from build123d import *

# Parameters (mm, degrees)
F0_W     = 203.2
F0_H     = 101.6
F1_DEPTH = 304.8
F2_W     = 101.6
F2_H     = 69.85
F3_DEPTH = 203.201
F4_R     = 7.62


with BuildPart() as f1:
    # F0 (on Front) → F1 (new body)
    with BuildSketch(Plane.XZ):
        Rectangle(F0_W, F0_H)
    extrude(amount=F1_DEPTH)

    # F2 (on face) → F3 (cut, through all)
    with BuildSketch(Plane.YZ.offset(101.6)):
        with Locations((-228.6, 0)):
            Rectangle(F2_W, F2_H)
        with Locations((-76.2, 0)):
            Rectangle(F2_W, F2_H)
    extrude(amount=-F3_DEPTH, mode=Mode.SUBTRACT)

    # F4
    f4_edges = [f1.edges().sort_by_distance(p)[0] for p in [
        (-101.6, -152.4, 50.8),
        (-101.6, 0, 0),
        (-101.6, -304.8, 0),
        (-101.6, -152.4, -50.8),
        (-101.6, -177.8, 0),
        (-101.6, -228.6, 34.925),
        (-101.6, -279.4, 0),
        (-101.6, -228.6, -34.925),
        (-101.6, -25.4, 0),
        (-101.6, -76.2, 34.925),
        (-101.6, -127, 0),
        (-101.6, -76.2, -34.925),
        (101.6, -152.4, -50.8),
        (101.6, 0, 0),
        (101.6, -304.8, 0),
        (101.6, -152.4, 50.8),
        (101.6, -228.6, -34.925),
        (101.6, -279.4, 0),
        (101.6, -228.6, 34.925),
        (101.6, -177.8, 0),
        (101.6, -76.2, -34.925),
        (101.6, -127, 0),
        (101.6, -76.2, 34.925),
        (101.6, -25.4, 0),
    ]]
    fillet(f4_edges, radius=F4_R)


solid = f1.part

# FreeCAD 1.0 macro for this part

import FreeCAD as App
import Part
import Sketcher
Q = App.Units.Quantity


def edges_at(feature, points):
    """Names of the edges that pass closest to the given points."""
    edges = feature.Shape.Edges
    near = lambda p: min(range(len(edges)), key=lambda i: edges[i].distToShape(Part.Vertex(*p))[0])
    return sorted({f"Edge{near(p) + 1}" for p in points})

doc = App.newDocument("Part")
body = doc.addObject("PartDesign::Body", "Body")

# Sketch on XZ plane
sketch1 = body.newObject("Sketcher::SketchObject", "Sketch")
sketch1.AttachmentSupport = (doc.getObject("XZ_Plane"), [""])
sketch1.MapMode = "FlatFace"
sketch1.addGeometry(Part.LineSegment(App.Vector(-101.6, 50.8, 0), App.Vector(-101.6, -50.8, 0)), False)
sketch1.addGeometry(Part.LineSegment(App.Vector(-101.6, -50.8, 0), App.Vector(101.6, -50.8, 0)), False)
sketch1.addGeometry(Part.LineSegment(App.Vector(101.6, -50.8, 0), App.Vector(101.6, 50.8, 0)), False)
sketch1.addGeometry(Part.LineSegment(App.Vector(101.6, 50.8, 0), App.Vector(-101.6, 50.8, 0)), False)
sketch1.addConstraint(Sketcher.Constraint("Coincident", 0, 2, 1, 1))
sketch1.addConstraint(Sketcher.Constraint("Coincident", 1, 2, 2, 1))
sketch1.addConstraint(Sketcher.Constraint("Coincident", 2, 2, 3, 1))
sketch1.addConstraint(Sketcher.Constraint("Coincident", 3, 2, 0, 1))
sketch1.addConstraint(Sketcher.Constraint("Vertical", 0))
sketch1.addConstraint(Sketcher.Constraint("Horizontal", 1))
sketch1.addConstraint(Sketcher.Constraint("Vertical", 2))
sketch1.addConstraint(Sketcher.Constraint("Horizontal", 3))
sketch1.addConstraint(Sketcher.Constraint("Symmetric", 0, 2, 2, 2, -1, 1))
sketch1.addConstraint(Sketcher.Constraint("DistanceX", 1, 1, 1, 2, Q("8 in")))
sketch1.addConstraint(Sketcher.Constraint("DistanceY", 0, 2, 0, 1, Q("4 in")))
pad1 = body.newObject("PartDesign::Pad", "Pad")
pad1.Profile = sketch1
pad1.Length = Q("12 in")

# Sketch on YZ plane
sketch2 = body.newObject("Sketcher::SketchObject", "Sketch001")
sketch2.AttachmentSupport = (doc.getObject("YZ_Plane"), [""])
sketch2.MapMode = "FlatFace"
sketch2.AttachmentOffset = App.Placement(App.Vector(0, 0, 4 * 25.4), App.Rotation())
sketch2.addGeometry(Part.LineSegment(App.Vector(-279.4, 34.925, 0), App.Vector(-279.4, -34.925, 0)), False)
sketch2.addGeometry(Part.LineSegment(App.Vector(-279.4, -34.925, 0), App.Vector(-177.8, -34.925, 0)), False)
sketch2.addGeometry(Part.LineSegment(App.Vector(-177.8, -34.925, 0), App.Vector(-177.8, 34.925, 0)), False)
sketch2.addGeometry(Part.LineSegment(App.Vector(-177.8, 34.925, 0), App.Vector(-279.4, 34.925, 0)), False)
sketch2.addGeometry(Part.LineSegment(App.Vector(-127, 34.925, 0), App.Vector(-127, -34.925, 0)), False)
sketch2.addGeometry(Part.LineSegment(App.Vector(-127, -34.925, 0), App.Vector(-25.4, -34.925, 0)), False)
sketch2.addGeometry(Part.LineSegment(App.Vector(-25.4, -34.925, 0), App.Vector(-25.4, 34.925, 0)), False)
sketch2.addGeometry(Part.LineSegment(App.Vector(-25.4, 34.925, 0), App.Vector(-127, 34.925, 0)), False)
sketch2.addConstraint(Sketcher.Constraint("Coincident", 0, 2, 1, 1))
sketch2.addConstraint(Sketcher.Constraint("Coincident", 1, 2, 2, 1))
sketch2.addConstraint(Sketcher.Constraint("Coincident", 2, 2, 3, 1))
sketch2.addConstraint(Sketcher.Constraint("Coincident", 3, 2, 0, 1))
sketch2.addConstraint(Sketcher.Constraint("Coincident", 4, 2, 5, 1))
sketch2.addConstraint(Sketcher.Constraint("Coincident", 5, 2, 6, 1))
sketch2.addConstraint(Sketcher.Constraint("Coincident", 6, 2, 7, 1))
sketch2.addConstraint(Sketcher.Constraint("Coincident", 7, 2, 4, 1))
sketch2.addConstraint(Sketcher.Constraint("Vertical", 0))
sketch2.addConstraint(Sketcher.Constraint("Horizontal", 1))
sketch2.addConstraint(Sketcher.Constraint("Vertical", 2))
sketch2.addConstraint(Sketcher.Constraint("Horizontal", 3))
sketch2.addConstraint(Sketcher.Constraint("Vertical", 4))
sketch2.addConstraint(Sketcher.Constraint("Horizontal", 5))
sketch2.addConstraint(Sketcher.Constraint("Vertical", 6))
sketch2.addConstraint(Sketcher.Constraint("Horizontal", 7))
sketch2.addConstraint(Sketcher.Constraint("Horizontal", 1, 2, 4, 2))
sketch2.addConstraint(Sketcher.Constraint("Horizontal", 3, 2, 6, 2))
sketch2.addConstraint(Sketcher.Constraint("Equal", 3, 5))
sketch2.addConstraint(Sketcher.Constraint("DistanceX", 1, 1, 1, 2, Q("4 in")))
sketch2.addConstraint(Sketcher.Constraint("DistanceX", 0, 2, -1, 1, Q("11 in")))
sketch2.addConstraint(Sketcher.Constraint("DistanceX", 4, 2, -1, 1, Q("5 in")))
sketch2.addConstraint(Sketcher.Constraint("DistanceY", 0, 2, 0, 1, Q("2.75 in")))
sketch2.addConstraint(Sketcher.Constraint("DistanceY", 0, 2, -1, 1, Q("1.375 in")))
pocket1 = body.newObject("PartDesign::Pocket", "Pocket")
pocket1.Profile = sketch2
pocket1.Type = "ThroughAll"
doc.recompute()

fillet = body.newObject("PartDesign::Fillet", "Fillet")
fillet.Base = (pocket1, edges_at(pocket1, [
    (-101.6, -152.4, 50.8),
    (-101.6, 0, 0),
    (-101.6, -304.8, 0),
    (-101.6, -152.4, -50.8),
    (-101.6, -177.8, 0),
    (-101.6, -228.6, 34.925),
    (-101.6, -279.4, 0),
    (-101.6, -228.6, -34.925),
    (-101.6, -25.4, 0),
    (-101.6, -76.2, 34.925),
    (-101.6, -127, 0),
    (-101.6, -76.2, -34.925),
    (101.6, -152.4, -50.8),
    (101.6, 0, 0),
    (101.6, -304.8, 0),
    (101.6, -152.4, 50.8),
    (101.6, -228.6, -34.925),
    (101.6, -279.4, 0),
    (101.6, -228.6, 34.925),
    (101.6, -177.8, 0),
    (101.6, -76.2, -34.925),
    (101.6, -127, 0),
    (101.6, -76.2, 34.925),
    (101.6, -25.4, 0),
]))
fillet.Radius = Q("0.3 in")

doc.recompute()
